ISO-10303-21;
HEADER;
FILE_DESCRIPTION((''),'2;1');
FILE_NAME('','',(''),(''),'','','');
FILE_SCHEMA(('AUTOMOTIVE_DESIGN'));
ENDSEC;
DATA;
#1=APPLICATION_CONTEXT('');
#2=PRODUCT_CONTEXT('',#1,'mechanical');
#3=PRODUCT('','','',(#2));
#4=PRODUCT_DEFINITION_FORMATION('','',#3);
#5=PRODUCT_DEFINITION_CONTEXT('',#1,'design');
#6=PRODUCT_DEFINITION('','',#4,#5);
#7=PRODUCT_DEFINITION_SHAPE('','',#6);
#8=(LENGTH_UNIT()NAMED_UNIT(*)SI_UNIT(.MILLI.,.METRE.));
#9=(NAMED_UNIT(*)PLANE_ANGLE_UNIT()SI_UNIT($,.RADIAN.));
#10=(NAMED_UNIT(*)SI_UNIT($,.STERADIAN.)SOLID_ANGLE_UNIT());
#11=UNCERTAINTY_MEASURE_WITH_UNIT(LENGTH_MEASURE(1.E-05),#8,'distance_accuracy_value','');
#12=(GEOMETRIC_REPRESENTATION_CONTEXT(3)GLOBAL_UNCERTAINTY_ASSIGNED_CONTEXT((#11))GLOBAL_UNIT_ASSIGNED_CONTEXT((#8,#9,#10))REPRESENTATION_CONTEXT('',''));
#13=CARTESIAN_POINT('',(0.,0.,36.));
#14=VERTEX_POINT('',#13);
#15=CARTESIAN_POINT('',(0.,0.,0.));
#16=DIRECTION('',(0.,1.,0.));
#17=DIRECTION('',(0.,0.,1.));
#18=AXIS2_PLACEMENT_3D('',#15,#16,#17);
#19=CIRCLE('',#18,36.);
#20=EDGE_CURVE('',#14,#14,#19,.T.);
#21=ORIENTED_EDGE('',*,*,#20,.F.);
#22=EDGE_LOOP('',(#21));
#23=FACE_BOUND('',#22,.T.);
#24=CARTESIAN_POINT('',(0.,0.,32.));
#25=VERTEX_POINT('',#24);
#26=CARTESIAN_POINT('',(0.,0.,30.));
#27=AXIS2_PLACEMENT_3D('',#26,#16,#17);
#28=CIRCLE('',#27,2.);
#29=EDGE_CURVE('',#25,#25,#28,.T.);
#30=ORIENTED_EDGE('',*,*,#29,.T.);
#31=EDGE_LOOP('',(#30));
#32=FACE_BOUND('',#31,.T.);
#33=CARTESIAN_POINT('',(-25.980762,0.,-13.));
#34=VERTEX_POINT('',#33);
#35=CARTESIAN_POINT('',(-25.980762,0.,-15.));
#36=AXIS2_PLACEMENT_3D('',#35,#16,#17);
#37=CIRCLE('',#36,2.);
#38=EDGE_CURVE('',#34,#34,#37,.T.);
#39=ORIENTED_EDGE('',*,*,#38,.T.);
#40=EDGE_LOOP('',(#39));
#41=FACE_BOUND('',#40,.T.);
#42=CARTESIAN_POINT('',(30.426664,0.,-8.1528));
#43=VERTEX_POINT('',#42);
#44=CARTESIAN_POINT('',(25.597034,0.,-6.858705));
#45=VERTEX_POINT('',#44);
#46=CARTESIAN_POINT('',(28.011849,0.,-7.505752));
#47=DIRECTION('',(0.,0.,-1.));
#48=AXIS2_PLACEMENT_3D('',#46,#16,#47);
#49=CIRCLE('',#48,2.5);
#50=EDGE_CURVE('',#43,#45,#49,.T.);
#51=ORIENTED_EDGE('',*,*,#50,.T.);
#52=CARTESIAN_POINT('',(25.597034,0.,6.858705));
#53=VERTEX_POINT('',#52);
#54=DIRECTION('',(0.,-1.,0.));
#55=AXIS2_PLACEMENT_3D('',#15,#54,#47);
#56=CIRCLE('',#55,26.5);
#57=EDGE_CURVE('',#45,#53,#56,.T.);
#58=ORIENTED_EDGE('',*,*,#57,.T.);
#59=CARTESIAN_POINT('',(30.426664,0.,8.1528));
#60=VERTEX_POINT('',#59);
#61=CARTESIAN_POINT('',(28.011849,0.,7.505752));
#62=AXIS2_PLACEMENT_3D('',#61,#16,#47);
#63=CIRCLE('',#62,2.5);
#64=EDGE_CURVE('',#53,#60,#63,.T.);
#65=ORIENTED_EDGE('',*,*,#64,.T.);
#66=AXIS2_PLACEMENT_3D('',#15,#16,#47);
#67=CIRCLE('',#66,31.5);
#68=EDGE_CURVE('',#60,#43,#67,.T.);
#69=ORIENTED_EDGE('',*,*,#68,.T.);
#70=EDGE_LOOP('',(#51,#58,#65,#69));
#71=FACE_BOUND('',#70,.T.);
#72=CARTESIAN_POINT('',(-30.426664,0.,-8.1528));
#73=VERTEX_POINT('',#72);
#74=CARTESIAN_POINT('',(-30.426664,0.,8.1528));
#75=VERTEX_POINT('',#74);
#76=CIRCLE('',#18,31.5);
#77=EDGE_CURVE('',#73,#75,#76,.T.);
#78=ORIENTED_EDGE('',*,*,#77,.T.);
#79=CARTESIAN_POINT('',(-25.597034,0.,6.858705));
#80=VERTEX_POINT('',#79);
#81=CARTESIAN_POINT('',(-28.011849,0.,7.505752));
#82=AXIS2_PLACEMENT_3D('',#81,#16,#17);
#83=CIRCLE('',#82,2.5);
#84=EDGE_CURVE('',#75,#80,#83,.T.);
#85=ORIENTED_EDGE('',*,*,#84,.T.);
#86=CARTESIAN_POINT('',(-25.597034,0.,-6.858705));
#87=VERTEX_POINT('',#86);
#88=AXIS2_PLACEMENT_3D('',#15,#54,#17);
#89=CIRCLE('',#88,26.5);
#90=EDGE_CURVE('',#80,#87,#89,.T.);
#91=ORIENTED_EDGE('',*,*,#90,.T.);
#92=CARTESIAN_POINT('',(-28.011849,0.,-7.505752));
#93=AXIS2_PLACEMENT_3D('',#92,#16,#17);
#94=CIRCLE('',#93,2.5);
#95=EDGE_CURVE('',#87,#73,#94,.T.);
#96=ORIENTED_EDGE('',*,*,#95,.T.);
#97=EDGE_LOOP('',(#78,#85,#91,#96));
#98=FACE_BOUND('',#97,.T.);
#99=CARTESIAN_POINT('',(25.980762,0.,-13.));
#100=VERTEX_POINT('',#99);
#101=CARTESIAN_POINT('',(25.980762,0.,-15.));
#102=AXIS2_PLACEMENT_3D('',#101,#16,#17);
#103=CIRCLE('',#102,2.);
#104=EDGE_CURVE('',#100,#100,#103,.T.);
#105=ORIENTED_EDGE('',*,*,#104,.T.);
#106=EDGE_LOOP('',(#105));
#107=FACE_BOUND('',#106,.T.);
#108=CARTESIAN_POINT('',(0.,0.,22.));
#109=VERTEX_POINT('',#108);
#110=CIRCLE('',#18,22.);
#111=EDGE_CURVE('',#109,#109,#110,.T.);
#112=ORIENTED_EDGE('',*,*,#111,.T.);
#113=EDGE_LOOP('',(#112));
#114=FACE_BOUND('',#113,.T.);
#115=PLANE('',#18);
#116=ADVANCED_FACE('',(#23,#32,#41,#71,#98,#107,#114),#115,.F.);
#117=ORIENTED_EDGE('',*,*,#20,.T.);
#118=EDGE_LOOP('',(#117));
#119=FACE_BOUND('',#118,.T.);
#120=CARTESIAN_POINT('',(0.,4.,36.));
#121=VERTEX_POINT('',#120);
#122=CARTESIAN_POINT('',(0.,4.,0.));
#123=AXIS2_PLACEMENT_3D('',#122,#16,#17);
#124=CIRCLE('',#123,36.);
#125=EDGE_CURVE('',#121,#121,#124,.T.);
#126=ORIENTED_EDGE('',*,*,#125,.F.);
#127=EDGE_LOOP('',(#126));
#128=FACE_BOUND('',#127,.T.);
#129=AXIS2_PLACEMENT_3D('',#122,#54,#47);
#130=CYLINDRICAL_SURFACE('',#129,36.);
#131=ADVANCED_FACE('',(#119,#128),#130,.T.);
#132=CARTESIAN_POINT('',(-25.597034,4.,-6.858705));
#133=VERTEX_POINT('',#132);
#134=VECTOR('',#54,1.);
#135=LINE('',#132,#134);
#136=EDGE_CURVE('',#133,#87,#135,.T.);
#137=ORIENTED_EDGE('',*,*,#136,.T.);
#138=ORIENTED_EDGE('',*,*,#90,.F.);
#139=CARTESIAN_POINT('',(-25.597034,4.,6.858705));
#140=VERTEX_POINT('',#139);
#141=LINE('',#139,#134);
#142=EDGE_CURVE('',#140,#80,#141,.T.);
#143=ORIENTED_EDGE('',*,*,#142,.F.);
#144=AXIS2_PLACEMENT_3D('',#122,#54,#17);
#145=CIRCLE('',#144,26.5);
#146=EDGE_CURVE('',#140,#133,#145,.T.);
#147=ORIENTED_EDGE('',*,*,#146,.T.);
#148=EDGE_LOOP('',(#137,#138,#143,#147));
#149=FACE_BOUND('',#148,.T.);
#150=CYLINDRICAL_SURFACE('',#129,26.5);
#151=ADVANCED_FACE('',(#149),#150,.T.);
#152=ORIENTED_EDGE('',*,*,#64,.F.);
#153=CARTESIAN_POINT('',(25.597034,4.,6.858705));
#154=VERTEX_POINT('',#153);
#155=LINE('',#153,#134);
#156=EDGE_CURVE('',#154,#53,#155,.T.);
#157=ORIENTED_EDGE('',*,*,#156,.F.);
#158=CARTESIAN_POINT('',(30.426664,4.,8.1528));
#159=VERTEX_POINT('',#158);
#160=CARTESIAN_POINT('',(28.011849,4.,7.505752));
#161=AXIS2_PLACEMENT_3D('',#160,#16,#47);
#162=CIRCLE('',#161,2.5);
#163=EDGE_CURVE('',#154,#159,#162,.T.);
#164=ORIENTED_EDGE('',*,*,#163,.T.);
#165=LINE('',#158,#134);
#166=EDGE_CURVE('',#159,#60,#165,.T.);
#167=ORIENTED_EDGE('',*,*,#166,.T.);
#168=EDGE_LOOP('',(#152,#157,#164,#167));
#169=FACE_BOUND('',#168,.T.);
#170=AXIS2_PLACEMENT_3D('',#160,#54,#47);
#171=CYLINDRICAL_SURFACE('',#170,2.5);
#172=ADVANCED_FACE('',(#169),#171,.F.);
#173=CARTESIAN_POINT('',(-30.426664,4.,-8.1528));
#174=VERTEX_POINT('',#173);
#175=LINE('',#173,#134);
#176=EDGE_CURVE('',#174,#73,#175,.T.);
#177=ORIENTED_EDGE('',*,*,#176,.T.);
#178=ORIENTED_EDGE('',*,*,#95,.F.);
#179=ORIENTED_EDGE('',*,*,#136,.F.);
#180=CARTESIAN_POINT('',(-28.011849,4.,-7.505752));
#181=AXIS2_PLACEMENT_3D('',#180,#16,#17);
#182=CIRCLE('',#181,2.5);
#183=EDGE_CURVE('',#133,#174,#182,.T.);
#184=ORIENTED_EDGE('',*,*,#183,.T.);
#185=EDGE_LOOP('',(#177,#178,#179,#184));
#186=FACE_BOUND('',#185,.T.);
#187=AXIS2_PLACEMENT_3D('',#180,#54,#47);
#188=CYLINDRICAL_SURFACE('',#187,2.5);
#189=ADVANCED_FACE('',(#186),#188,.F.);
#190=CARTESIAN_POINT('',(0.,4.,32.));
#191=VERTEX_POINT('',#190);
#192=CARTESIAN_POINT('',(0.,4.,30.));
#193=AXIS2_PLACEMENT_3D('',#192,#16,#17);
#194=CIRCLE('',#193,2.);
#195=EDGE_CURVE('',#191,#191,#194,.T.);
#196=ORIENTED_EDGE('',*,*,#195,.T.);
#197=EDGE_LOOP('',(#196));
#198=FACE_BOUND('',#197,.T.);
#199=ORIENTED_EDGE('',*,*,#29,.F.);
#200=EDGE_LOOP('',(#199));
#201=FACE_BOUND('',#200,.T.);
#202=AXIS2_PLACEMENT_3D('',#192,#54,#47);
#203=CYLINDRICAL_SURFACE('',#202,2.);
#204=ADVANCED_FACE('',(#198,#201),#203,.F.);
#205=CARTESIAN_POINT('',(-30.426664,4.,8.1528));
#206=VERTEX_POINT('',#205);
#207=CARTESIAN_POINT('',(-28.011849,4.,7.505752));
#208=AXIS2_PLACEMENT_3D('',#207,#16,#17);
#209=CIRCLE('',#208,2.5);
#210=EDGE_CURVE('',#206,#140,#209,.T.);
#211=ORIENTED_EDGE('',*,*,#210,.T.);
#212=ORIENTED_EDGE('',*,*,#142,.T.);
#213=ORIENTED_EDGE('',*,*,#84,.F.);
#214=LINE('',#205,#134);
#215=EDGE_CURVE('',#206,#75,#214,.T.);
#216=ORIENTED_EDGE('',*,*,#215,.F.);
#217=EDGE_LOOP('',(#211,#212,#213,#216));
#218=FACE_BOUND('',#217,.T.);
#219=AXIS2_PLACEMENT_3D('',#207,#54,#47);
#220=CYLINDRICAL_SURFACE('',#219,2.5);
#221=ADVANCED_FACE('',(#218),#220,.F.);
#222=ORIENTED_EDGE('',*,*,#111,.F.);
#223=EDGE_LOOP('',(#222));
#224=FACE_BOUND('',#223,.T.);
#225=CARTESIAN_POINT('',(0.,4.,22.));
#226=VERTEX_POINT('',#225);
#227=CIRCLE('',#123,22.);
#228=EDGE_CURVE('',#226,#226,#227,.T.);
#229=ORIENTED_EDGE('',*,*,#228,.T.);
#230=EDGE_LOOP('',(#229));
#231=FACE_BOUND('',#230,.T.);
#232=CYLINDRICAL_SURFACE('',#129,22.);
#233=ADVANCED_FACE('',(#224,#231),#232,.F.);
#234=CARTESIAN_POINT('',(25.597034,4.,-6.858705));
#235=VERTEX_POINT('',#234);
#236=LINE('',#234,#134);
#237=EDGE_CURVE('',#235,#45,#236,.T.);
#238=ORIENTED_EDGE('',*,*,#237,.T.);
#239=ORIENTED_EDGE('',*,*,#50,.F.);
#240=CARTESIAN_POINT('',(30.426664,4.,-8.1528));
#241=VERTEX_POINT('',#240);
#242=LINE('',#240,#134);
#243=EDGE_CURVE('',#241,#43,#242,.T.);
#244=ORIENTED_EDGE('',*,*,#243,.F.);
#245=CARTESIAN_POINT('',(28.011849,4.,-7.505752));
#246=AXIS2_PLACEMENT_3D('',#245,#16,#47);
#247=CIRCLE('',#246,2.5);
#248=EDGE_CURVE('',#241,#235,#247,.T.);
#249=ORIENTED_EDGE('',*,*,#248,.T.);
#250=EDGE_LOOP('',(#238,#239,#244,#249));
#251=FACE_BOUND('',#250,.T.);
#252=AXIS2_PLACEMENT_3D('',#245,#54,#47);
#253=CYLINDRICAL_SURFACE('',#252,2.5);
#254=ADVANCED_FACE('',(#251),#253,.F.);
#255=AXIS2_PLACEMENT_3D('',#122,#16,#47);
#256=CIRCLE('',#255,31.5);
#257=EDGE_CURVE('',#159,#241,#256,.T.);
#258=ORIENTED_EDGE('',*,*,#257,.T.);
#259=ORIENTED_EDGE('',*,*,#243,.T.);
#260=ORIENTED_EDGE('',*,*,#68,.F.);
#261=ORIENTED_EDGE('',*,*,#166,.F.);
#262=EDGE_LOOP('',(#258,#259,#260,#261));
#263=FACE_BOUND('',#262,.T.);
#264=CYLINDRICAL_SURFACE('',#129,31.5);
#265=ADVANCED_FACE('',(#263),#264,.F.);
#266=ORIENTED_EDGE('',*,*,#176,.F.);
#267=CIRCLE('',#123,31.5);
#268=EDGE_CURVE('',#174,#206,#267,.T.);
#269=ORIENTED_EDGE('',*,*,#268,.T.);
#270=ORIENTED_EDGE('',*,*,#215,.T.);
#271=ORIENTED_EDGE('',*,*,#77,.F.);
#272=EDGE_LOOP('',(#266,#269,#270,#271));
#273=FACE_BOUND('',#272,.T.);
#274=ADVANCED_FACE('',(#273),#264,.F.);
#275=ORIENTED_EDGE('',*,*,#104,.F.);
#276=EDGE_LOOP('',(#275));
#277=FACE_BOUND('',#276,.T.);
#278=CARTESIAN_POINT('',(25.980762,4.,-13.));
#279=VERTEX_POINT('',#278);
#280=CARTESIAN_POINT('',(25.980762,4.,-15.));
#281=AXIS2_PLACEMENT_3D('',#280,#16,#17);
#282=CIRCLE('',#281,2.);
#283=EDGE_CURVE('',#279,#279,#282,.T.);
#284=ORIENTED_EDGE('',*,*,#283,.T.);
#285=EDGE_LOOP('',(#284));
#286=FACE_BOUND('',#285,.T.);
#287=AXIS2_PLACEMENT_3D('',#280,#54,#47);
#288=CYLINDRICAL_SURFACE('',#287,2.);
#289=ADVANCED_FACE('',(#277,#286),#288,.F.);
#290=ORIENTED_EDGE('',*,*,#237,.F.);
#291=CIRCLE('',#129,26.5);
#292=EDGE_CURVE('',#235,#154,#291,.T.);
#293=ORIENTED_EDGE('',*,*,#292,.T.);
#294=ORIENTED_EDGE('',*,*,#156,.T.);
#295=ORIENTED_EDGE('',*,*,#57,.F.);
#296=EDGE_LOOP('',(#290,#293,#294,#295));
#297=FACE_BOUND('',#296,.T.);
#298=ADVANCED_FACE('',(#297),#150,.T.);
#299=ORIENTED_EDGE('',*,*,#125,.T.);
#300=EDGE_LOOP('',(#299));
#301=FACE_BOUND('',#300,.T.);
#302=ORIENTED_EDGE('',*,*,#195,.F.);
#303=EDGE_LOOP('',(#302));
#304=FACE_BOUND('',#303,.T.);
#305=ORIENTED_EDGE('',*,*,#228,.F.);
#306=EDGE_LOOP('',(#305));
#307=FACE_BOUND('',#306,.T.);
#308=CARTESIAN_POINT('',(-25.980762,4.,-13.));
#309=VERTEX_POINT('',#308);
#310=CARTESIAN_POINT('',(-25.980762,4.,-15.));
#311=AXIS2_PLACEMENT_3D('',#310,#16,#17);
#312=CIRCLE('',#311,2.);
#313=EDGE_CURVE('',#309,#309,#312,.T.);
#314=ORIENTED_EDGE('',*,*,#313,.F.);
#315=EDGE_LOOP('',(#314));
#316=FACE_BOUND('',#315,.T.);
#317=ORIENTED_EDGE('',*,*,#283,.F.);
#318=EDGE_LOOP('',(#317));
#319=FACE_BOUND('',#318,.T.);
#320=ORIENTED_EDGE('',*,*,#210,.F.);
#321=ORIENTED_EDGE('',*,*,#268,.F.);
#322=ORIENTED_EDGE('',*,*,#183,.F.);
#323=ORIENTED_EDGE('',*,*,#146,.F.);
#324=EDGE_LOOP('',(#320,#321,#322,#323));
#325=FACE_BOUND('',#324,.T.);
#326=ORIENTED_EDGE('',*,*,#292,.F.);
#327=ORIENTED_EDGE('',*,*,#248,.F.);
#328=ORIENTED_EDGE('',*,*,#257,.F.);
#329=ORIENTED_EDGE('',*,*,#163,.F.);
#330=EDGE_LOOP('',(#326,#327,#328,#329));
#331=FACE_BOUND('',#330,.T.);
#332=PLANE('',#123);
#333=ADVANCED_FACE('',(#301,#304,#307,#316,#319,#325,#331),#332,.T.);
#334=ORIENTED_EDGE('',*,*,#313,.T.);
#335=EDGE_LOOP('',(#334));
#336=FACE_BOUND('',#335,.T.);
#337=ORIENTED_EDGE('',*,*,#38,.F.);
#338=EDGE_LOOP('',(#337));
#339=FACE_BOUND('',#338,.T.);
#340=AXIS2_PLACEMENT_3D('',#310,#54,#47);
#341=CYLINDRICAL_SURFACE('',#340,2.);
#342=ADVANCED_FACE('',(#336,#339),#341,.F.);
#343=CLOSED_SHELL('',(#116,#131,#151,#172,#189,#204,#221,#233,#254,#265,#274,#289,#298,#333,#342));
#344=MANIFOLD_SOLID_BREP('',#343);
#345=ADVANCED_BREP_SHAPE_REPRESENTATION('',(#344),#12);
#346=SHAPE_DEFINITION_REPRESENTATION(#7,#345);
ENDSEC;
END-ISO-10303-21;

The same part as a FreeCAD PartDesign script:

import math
import FreeCAD as App
import Part
import Sketcher

V = App.Vector
Q = App.Units.Quantity

doc = App.newDocument("Part")
body = doc.addObject("PartDesign::Body", "Body")

# Sketch on XZ plane
sketch1 = body.newObject("Sketcher::SketchObject", "Sketch")
sketch1.AttachmentSupport = (doc.getObject("XZ_Plane"), [""])
sketch1.MapMode = "FlatFace"
sketch1.addGeometry(Part.Circle(V(0, 0, 0), V(0, 0, 1), 36), False)
sketch1.addGeometry(Part.Circle(V(-26, -15, 0), V(0, 0, 1), 2), False)
sketch1.addGeometry(Part.ArcOfCircle(Part.Circle(V(0, 0, 0), V(0, 0, 1), 31.5), math.radians(165), math.radians(195)), False)
sketch1.addGeometry(Part.ArcOfCircle(Part.Circle(V(-28, -7.5, 0), V(0, 0, 1), 2.5), math.radians(-165), math.radians(15)), False)
sketch1.addGeometry(Part.ArcOfCircle(Part.Circle(V(0, 0, 0), V(0, 0, 1), 26.5), math.radians(165), math.radians(195)), False)
sketch1.addGeometry(Part.ArcOfCircle(Part.Circle(V(-28, 7.5, 0), V(0, 0, 1), 2.5), math.radians(-15), math.radians(165)), False)
sketch1.addGeometry(Part.Circle(V(0, 0, 0), V(0, 0, 1), 22), False)
sketch1.addGeometry(Part.Circle(V(26, -15, 0), V(0, 0, 1), 2), False)
sketch1.addGeometry(Part.ArcOfCircle(Part.Circle(V(28, -7.5, 0), V(0, 0, 1), 2.5), math.radians(165), math.radians(345)), False)
sketch1.addGeometry(Part.ArcOfCircle(Part.Circle(V(0, 0, 0), V(0, 0, 1), 31.5), math.radians(-15), math.radians(15)), False)
sketch1.addGeometry(Part.ArcOfCircle(Part.Circle(V(28, 7.5, 0), V(0, 0, 1), 2.5), math.radians(15), math.radians(195)), False)
sketch1.addGeometry(Part.ArcOfCircle(Part.Circle(V(0, 0, 0), V(0, 0, 1), 26.5), math.radians(-15), math.radians(15)), False)
sketch1.addGeometry(Part.Circle(V(0, 30, 0), V(0, 0, 1), 2), False)
sketch1.addConstraint(Sketcher.Constraint("Tangent", 2, 2, 3, 1))
sketch1.addConstraint(Sketcher.Constraint("Tangent", 3, 2, 4, 2))
sketch1.addConstraint(Sketcher.Constraint("Tangent", 4, 1, 5, 1))
sketch1.addConstraint(Sketcher.Constraint("Tangent", 5, 2, 2, 1))
sketch1.addConstraint(Sketcher.Constraint("Tangent", 8, 2, 9, 1))
sketch1.addConstraint(Sketcher.Constraint("Tangent", 9, 2, 10, 1))
sketch1.addConstraint(Sketcher.Constraint("Tangent", 10, 2, 11, 2))
sketch1.addConstraint(Sketcher.Constraint("Tangent", 11, 1, 8, 1))
sketch1.addConstraint(Sketcher.Constraint("Coincident", 0, 3, -1, 1))
sketch1.addConstraint(Sketcher.Constraint("Coincident", 2, 3, -1, 1))
sketch1.addConstraint(Sketcher.Constraint("Coincident", 4, 3, -1, 1))
sketch1.addConstraint(Sketcher.Constraint("Coincident", 6, 3, -1, 1))
sketch1.addConstraint(Sketcher.Constraint("Coincident", 9, 3, -1, 1))
sketch1.addConstraint(Sketcher.Constraint("Coincident", 11, 3, -1, 1))
sketch1.addConstraint(Sketcher.Constraint("Equal", 1, 7))
sketch1.addConstraint(Sketcher.Constraint("Equal", 5, 8))
sketch1.addConstraint(Sketcher.Constraint("Equal", 2, 9))
sketch1.addConstraint(Sketcher.Constraint("Equal", 7, 12))
sketch1.addConstraint(Sketcher.Constraint("Symmetric", 1, 3, 7, 3, -2))
sketch1.addConstraint(Sketcher.Constraint("PointOnObject", 12, 3, -2))
sketch1.addConstraint(Sketcher.Constraint("Horizontal", 3, 3, 8, 3))
sketch1.addConstraint(Sketcher.Constraint("Horizontal", 5, 3, 10, 3))
sketch1.addConstraint(Sketcher.Constraint("Vertical", 3, 3, 5, 3))
sketch1.addConstraint(Sketcher.Constraint("Diameter", 0, Q("72 mm")))
sketch1.addConstraint(Sketcher.Constraint("Diameter", 1, Q("4 mm")))
sketch1.addConstraint(Sketcher.Constraint("Diameter", 6, Q("44 mm")))
sketch1.addConstraint(Sketcher.Constraint("Radius", 2, Q("31.5 mm")))
sketch1.addConstraint(Sketcher.Constraint("Radius", 3, Q("2.5 mm")))
sketch1.addConstraint(Sketcher.Constraint("DistanceY", 1, 3, -1, 1, Q("15 mm")))
sketch1.addConstraint(Sketcher.Constraint("DistanceY", -1, 1, 12, 3, Q("30 mm")))
sketch1.addConstraint(Sketcher.Constraint("DistanceY", 2, 2, -1, 1, Q("8.1528 mm")))
sketch1.addConstraint(Sketcher.Constraint("DistanceX", 2, 2, 1, 3, Q("4.445901 mm")))
pad1 = body.newObject("PartDesign::Pad", "Pad")
pad1.Profile = sketch1
pad1.Length = 4
pad1.Reversed = True

doc.recompute()
